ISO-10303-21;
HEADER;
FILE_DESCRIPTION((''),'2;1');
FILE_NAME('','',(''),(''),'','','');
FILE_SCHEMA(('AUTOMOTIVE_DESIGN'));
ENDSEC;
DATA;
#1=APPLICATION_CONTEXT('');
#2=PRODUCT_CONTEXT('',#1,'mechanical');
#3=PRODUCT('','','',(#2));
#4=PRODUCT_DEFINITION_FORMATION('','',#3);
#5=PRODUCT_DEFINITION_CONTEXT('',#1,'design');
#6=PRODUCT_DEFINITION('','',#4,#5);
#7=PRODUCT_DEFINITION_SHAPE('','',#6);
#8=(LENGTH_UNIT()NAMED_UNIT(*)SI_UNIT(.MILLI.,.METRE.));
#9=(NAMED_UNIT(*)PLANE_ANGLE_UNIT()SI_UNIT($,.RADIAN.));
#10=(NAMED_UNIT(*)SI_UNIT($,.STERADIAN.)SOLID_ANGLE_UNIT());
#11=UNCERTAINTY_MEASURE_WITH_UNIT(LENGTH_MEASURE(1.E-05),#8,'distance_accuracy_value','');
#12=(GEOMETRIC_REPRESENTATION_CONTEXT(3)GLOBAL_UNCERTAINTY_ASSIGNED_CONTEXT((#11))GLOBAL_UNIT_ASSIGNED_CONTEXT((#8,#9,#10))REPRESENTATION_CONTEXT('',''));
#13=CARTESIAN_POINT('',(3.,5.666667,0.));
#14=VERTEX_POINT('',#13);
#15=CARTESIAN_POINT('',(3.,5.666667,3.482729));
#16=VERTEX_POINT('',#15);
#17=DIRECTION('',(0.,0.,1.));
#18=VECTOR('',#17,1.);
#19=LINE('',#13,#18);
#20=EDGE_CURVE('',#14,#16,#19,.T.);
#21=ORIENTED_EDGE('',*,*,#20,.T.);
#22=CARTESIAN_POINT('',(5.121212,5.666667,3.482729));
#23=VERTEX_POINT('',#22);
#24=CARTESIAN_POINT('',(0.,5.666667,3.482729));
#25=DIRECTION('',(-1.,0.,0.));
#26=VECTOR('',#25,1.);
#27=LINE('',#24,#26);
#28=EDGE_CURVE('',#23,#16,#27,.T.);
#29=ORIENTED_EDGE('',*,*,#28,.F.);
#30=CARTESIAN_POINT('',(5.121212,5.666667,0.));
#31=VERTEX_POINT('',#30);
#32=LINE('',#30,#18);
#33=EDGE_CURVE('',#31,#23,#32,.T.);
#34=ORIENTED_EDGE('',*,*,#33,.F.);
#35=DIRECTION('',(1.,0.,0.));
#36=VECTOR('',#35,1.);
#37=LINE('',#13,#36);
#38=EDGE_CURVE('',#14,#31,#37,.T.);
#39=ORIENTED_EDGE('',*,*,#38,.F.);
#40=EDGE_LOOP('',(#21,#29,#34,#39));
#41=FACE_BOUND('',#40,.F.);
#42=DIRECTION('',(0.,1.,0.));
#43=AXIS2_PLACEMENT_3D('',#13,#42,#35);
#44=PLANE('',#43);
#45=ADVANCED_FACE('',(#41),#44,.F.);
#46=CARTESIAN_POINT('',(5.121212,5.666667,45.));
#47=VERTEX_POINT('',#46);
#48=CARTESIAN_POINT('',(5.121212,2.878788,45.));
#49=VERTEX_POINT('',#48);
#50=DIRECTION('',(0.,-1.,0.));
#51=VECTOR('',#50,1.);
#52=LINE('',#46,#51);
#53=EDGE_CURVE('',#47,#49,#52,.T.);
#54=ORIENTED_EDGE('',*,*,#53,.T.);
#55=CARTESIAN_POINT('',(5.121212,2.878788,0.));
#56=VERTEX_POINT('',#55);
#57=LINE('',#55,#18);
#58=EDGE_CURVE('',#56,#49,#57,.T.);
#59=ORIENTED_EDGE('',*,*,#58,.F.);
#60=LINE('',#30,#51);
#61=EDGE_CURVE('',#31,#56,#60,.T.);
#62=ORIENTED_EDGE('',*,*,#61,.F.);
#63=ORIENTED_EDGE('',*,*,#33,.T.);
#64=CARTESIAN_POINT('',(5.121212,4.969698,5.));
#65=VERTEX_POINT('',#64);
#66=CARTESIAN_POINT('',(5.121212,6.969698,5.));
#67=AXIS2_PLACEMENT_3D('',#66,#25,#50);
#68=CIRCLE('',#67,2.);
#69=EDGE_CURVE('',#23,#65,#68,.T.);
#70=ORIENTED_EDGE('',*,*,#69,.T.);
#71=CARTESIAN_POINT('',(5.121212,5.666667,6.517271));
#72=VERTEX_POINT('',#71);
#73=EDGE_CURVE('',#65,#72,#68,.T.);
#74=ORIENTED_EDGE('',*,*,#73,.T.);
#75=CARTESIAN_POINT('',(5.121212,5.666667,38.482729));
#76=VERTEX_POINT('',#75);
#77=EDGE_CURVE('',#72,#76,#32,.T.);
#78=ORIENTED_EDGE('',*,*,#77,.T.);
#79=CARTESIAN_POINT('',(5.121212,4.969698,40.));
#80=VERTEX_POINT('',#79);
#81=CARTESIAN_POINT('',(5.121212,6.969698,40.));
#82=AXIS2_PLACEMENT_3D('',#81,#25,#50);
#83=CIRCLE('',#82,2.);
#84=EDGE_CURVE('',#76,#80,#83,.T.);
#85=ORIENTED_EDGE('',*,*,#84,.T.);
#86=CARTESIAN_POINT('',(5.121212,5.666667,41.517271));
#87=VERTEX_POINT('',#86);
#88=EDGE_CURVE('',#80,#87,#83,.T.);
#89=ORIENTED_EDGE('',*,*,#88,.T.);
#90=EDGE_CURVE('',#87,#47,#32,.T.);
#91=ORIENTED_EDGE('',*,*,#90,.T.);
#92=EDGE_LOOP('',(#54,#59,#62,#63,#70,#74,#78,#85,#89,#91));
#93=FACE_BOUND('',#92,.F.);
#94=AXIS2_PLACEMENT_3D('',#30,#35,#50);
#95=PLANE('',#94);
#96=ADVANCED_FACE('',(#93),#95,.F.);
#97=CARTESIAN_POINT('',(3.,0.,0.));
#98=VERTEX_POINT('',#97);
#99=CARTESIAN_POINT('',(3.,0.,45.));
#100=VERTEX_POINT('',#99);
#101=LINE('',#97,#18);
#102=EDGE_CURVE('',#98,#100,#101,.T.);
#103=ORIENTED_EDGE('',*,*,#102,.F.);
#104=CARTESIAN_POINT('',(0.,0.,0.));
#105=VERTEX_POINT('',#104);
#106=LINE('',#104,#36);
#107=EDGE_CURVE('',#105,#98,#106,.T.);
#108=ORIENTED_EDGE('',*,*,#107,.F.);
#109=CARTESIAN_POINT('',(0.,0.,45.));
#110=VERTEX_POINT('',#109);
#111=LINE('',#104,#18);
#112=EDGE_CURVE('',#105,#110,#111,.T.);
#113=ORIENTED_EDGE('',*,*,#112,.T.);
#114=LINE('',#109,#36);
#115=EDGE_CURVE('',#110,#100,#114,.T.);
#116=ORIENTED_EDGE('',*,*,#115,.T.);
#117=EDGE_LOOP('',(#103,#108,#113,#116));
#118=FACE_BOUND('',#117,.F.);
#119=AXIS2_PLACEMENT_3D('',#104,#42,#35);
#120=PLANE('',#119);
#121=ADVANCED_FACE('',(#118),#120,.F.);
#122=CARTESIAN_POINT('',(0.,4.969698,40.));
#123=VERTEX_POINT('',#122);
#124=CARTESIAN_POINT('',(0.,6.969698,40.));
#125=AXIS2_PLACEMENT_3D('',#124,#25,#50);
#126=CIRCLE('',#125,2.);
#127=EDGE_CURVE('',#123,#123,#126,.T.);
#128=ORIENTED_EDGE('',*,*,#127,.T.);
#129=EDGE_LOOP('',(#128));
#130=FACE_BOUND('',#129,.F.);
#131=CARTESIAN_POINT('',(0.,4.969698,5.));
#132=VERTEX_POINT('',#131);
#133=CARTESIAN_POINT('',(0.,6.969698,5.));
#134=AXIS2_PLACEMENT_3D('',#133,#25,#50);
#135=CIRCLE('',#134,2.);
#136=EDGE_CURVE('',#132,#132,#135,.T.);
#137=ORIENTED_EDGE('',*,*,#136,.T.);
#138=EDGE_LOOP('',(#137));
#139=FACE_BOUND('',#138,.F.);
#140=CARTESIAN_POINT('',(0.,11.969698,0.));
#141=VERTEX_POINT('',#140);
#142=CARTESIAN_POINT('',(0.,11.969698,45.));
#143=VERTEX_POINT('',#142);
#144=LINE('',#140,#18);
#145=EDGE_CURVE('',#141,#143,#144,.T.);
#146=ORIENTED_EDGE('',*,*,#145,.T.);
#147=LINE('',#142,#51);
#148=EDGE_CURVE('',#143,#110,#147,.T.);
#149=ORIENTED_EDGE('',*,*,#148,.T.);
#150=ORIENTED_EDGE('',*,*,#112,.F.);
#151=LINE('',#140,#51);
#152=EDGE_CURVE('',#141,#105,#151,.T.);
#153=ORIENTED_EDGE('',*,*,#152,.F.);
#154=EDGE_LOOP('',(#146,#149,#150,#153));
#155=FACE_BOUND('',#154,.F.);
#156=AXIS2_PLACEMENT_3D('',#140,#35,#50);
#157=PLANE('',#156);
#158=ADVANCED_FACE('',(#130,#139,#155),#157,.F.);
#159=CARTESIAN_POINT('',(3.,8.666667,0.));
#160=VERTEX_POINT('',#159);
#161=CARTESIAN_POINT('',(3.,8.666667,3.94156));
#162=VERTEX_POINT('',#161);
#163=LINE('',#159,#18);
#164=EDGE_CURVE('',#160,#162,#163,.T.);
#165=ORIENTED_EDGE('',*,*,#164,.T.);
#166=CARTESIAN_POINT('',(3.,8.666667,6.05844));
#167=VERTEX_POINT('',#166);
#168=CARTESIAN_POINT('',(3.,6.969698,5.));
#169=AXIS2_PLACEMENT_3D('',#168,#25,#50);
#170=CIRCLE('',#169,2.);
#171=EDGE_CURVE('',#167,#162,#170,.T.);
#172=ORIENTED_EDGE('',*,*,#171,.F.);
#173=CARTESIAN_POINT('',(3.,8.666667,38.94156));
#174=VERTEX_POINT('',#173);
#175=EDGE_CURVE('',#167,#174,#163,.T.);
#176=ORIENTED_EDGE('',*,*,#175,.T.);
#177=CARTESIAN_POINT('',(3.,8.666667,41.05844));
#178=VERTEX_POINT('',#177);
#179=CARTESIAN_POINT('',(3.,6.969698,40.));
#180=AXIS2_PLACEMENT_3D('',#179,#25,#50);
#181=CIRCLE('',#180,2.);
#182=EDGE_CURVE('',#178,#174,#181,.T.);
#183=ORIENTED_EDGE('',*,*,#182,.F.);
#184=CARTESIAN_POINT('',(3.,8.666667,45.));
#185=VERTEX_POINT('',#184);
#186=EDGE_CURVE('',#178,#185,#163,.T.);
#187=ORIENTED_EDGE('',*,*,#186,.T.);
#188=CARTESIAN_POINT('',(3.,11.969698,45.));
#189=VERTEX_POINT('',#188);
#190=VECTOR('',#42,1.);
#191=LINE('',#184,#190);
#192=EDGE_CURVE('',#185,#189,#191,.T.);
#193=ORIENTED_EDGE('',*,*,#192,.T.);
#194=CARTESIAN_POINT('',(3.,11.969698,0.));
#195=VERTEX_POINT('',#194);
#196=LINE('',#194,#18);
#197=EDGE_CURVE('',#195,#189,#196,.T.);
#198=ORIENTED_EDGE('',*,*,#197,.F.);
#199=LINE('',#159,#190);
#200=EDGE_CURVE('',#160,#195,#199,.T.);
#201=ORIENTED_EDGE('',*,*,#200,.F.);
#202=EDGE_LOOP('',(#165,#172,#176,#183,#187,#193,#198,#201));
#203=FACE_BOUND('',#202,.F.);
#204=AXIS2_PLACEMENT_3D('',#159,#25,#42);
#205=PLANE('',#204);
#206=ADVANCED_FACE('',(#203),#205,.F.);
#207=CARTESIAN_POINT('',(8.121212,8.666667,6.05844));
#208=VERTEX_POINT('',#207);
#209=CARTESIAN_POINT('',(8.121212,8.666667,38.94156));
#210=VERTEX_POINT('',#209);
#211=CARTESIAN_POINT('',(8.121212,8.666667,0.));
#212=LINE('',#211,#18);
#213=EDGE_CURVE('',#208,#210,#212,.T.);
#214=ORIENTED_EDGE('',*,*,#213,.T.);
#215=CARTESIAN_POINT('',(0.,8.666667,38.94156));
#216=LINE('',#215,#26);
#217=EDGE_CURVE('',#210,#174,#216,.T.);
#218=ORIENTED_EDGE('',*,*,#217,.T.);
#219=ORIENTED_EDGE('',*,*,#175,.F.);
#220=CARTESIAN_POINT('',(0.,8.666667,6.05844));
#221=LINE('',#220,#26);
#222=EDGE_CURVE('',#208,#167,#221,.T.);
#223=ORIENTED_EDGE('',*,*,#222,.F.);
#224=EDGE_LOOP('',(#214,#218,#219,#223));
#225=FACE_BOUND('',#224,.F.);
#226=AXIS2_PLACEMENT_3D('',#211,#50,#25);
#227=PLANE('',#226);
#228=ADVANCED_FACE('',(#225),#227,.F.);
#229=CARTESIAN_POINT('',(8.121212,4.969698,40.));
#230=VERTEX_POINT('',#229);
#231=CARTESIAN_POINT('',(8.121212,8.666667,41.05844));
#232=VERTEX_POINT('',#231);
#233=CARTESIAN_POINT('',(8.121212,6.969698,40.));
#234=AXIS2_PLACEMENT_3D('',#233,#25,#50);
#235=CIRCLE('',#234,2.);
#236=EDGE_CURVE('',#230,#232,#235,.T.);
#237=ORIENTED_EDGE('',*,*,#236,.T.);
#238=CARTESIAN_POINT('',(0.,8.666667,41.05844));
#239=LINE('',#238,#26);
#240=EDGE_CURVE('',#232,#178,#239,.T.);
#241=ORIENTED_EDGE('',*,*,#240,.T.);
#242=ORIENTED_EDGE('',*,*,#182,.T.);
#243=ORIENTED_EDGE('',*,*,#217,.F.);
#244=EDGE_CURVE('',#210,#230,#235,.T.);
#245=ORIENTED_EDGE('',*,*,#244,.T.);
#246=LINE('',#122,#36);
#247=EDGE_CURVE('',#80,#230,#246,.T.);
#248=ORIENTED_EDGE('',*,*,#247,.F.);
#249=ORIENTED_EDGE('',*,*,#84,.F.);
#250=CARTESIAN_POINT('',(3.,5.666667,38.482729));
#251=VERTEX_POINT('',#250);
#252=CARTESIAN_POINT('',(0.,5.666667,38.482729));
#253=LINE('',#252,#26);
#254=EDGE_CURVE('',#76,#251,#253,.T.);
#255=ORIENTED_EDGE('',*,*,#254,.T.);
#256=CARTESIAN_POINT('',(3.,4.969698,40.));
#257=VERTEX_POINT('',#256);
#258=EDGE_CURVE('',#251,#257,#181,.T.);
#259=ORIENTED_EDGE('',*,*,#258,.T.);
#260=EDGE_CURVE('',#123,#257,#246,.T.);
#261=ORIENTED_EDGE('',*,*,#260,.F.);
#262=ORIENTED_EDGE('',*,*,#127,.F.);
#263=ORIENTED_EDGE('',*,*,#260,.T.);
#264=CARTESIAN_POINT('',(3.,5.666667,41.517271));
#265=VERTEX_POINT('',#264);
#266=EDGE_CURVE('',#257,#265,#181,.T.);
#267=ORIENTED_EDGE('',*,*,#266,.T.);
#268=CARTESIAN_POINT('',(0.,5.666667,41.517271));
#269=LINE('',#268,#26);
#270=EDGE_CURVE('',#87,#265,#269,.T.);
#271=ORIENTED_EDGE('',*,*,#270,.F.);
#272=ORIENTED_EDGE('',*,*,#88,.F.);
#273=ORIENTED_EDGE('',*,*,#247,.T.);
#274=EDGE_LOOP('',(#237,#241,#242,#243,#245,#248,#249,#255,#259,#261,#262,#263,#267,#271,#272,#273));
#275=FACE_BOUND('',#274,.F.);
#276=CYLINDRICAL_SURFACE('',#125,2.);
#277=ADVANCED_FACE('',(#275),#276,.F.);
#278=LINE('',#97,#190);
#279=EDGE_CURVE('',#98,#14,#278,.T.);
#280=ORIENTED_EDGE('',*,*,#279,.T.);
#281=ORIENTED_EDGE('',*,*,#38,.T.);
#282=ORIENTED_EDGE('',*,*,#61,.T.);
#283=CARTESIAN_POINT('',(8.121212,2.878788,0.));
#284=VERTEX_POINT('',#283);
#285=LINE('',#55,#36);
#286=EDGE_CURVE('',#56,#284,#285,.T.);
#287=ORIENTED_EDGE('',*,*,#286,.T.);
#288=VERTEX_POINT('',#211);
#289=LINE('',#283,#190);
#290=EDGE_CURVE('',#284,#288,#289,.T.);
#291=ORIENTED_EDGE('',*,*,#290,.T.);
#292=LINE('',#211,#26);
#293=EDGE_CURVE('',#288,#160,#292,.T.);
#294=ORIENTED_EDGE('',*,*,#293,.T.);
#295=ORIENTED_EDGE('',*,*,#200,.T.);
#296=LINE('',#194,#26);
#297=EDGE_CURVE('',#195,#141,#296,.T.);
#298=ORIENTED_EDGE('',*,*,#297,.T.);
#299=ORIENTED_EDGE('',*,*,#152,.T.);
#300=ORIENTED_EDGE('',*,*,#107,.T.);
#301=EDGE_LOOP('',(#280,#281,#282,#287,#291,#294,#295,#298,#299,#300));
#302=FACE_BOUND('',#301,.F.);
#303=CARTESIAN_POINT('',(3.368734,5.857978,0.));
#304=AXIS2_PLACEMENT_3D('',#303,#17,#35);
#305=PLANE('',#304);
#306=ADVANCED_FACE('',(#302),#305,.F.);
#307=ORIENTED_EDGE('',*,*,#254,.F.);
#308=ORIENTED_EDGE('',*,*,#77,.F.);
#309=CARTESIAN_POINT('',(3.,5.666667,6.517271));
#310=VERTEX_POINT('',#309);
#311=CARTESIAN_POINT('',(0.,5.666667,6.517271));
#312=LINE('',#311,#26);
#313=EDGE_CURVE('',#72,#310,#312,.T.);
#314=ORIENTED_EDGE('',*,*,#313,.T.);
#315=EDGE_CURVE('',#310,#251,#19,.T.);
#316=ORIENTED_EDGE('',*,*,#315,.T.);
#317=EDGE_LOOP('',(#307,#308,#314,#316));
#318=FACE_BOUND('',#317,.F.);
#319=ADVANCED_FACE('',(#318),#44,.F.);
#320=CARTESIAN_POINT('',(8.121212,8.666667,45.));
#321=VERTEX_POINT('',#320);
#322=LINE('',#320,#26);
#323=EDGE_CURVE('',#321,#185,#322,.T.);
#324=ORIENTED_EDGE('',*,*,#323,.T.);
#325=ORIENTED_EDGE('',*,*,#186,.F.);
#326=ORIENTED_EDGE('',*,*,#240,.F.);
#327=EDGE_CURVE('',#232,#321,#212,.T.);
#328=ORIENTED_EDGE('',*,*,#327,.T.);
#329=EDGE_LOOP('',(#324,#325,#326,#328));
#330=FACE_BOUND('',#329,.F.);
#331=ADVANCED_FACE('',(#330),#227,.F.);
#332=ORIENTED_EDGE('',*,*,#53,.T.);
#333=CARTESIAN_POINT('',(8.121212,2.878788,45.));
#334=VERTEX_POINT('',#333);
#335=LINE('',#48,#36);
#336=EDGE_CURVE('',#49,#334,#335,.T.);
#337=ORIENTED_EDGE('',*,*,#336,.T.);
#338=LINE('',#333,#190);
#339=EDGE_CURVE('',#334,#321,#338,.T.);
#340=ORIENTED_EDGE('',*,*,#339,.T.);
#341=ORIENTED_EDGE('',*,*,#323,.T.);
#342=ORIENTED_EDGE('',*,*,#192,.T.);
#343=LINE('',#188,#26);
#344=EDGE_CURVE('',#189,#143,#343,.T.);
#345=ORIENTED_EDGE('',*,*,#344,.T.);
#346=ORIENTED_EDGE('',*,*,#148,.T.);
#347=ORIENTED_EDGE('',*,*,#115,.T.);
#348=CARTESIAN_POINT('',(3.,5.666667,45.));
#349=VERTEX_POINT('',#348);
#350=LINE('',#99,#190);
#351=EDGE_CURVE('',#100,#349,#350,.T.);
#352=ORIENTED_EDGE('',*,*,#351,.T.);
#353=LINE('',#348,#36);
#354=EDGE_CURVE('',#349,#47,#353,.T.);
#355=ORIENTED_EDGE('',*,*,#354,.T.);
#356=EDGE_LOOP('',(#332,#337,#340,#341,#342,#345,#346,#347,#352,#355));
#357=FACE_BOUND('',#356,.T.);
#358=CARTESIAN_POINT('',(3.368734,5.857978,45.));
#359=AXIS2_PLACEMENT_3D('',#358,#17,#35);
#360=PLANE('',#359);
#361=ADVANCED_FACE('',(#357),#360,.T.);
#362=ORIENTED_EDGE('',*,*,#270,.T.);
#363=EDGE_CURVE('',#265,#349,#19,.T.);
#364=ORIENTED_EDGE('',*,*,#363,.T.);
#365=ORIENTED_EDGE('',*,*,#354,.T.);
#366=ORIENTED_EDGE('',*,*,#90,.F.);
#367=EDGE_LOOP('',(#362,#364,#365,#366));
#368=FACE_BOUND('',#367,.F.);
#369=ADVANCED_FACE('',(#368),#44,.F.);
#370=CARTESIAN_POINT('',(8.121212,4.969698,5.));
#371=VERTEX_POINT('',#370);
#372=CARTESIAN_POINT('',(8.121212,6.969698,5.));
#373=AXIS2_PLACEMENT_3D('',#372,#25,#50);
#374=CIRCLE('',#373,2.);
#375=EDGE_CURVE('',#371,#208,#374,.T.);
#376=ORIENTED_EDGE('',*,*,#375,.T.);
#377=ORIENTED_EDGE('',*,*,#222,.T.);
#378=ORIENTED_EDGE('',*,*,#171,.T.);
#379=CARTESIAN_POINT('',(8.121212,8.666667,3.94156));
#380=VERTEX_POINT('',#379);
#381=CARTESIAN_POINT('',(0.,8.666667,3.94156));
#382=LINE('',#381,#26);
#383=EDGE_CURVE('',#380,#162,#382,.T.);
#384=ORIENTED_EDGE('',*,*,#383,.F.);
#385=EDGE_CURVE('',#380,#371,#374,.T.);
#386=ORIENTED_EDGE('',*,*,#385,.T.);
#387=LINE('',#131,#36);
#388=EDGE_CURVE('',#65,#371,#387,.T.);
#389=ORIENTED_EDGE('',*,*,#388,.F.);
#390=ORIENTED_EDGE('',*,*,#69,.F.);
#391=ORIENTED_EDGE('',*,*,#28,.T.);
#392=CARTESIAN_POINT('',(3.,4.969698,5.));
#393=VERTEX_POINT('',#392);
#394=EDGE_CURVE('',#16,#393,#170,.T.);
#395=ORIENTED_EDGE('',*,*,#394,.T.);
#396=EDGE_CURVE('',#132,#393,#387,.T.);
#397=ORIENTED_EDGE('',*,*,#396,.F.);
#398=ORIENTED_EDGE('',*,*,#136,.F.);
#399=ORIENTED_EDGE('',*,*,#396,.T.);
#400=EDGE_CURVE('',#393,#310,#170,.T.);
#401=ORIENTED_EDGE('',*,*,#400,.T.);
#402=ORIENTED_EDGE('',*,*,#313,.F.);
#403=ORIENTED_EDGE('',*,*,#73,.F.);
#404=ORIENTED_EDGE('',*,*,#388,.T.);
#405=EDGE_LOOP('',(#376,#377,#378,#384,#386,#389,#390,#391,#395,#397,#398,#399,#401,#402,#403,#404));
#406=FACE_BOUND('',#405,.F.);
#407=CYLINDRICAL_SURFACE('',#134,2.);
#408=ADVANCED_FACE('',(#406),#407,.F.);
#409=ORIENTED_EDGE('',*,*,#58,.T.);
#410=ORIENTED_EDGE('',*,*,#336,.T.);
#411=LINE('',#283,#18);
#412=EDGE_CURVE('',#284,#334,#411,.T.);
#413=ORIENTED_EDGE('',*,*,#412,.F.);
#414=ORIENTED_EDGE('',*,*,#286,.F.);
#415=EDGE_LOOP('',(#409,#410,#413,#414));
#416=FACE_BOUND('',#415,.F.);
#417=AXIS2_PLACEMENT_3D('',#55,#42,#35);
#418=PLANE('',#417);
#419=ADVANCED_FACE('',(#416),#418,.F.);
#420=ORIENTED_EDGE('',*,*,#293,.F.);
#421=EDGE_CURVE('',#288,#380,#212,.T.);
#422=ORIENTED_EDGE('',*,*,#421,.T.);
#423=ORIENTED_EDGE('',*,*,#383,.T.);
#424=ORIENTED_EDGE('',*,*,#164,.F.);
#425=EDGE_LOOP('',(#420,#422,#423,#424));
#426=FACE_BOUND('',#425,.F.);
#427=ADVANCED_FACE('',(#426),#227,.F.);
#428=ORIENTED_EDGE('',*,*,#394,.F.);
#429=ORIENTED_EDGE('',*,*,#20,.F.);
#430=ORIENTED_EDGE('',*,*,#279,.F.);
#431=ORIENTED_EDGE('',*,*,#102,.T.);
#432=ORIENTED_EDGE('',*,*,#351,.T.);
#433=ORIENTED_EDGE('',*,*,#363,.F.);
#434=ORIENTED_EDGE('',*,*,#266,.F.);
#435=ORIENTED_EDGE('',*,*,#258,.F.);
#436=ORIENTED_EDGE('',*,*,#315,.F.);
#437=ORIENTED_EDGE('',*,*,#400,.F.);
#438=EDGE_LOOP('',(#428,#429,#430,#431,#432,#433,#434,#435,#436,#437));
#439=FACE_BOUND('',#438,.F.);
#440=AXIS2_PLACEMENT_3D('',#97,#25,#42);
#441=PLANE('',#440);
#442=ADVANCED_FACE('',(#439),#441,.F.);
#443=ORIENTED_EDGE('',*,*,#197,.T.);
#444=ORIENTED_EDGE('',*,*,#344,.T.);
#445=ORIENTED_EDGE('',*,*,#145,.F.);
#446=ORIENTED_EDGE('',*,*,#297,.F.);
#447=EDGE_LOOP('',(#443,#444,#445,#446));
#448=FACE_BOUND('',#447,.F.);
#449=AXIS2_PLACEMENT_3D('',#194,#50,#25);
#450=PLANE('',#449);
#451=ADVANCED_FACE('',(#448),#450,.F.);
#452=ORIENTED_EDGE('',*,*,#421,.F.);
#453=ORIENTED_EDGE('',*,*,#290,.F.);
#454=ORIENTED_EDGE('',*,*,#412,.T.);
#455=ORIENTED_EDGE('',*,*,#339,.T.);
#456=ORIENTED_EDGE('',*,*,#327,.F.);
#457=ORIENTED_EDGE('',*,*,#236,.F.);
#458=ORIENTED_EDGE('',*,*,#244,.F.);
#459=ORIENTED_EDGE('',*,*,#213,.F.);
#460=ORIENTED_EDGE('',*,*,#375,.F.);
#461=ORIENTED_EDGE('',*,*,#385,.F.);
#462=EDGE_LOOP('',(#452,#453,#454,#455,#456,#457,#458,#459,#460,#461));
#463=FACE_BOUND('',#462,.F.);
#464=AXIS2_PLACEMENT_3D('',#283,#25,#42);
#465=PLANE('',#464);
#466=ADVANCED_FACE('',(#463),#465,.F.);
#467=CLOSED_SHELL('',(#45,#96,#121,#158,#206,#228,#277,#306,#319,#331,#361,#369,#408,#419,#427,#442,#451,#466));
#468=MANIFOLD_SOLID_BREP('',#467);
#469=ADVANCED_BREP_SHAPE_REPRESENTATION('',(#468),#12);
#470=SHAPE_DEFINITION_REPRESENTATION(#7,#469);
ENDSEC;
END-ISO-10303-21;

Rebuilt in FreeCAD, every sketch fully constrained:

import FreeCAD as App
import Part
import Sketcher

V = App.Vector


def add_polygon(sketch, points):
    """Adds a closed chain of lines whose ends are joined by coincident constraints."""
    first, n = sketch.GeometryCount, len(points)
    for a, b in zip(points, points[1:] + points[:1]):
        sketch.addGeometry(Part.LineSegment(App.Vector(*a, 0), App.Vector(*b, 0)), False)
    for i in range(n):
        sketch.addConstraint(Sketcher.Constraint("Coincident", first + i, 2, first + (i + 1) % n, 1))

doc = App.newDocument("Part")
body = doc.addObject("PartDesign::Body", "Body")

# Sketch on XY plane
sketch1 = body.newObject("Sketcher::SketchObject", "Sketch")
sketch1.AttachmentSupport = (doc.getObject("XY_Plane"), [""])
sketch1.MapMode = "FlatFace"
add_polygon(sketch1, [(0, 11.969698), (0, 0), (3, 0), (3, 5.666667), (5.121212, 5.666667), (5.121212, 2.878788), (8.121212, 2.878788), (8.121212, 8.666667), (3, 8.666667), (3, 11.969698)])  # lines 0-9
sketch1.addConstraint([
    Sketcher.Constraint("Vertical", 0),
    Sketcher.Constraint("Horizontal", 1),
    Sketcher.Constraint("Vertical", 2),
    Sketcher.Constraint("Horizontal", 3),
    Sketcher.Constraint("Vertical", 4),
    Sketcher.Constraint("Horizontal", 5),
    Sketcher.Constraint("Vertical", 6),
    Sketcher.Constraint("Horizontal", 7),
    Sketcher.Constraint("Vertical", 8),
    Sketcher.Constraint("Horizontal", 9),
    Sketcher.Constraint("Coincident", 0, 2, -1, 1),
    Sketcher.Constraint("Vertical", 2, 2, 7, 2),
    Sketcher.Constraint("Equal", 1, 5),
    Sketcher.Constraint("DistanceX", 1, 1, 1, 2, 3.0),
    Sketcher.Constraint("DistanceY", 3, 2, 6, 2, 3.0),
    Sketcher.Constraint("DistanceX", 3, 1, 3, 2, 2.121212),
    Sketcher.Constraint("DistanceY", 4, 2, 4, 1, 2.787879),
    Sketcher.Constraint("DistanceY", 8, 1, 8, 2, 3.303031),
    Sketcher.Constraint("DistanceY", 0, 2, 0, 1, 11.969698),
])
pad1 = body.newObject("PartDesign::Pad", "Pad")
pad1.Profile = sketch1
pad1.Length = 45

# Sketch on YZ plane
sketch2 = body.newObject("Sketcher::SketchObject", "Sketch001")
sketch2.AttachmentSupport = (doc.getObject("YZ_Plane"), [""])
sketch2.MapMode = "FlatFace"
sketch2.addGeometry([
    Part.Circle(V(6.969698, 5, 0), V(0, 0, 1), 2),
    Part.Circle(V(6.969698, 40, 0), V(0, 0, 1), 2),
], False)
sketch2.addConstraint([
    Sketcher.Constraint("Equal", 0, 1),
    Sketcher.Constraint("Vertical", 0, 3, 1, 3),
    Sketcher.Constraint("Diameter", 0, 4.0),
    Sketcher.Constraint("DistanceY", -1, 1, 0, 3, 5.0),
    Sketcher.Constraint("DistanceY", -1, 1, 1, 3, 40.0),
    Sketcher.Constraint("DistanceX", -1, 1, 0, 3, 6.969698),
])
pocket1 = body.newObject("PartDesign::Pocket", "Pocket")
pocket1.Profile = sketch2
pocket1.Type = "ThroughAll"
pocket1.Reversed = True

doc.recompute()
